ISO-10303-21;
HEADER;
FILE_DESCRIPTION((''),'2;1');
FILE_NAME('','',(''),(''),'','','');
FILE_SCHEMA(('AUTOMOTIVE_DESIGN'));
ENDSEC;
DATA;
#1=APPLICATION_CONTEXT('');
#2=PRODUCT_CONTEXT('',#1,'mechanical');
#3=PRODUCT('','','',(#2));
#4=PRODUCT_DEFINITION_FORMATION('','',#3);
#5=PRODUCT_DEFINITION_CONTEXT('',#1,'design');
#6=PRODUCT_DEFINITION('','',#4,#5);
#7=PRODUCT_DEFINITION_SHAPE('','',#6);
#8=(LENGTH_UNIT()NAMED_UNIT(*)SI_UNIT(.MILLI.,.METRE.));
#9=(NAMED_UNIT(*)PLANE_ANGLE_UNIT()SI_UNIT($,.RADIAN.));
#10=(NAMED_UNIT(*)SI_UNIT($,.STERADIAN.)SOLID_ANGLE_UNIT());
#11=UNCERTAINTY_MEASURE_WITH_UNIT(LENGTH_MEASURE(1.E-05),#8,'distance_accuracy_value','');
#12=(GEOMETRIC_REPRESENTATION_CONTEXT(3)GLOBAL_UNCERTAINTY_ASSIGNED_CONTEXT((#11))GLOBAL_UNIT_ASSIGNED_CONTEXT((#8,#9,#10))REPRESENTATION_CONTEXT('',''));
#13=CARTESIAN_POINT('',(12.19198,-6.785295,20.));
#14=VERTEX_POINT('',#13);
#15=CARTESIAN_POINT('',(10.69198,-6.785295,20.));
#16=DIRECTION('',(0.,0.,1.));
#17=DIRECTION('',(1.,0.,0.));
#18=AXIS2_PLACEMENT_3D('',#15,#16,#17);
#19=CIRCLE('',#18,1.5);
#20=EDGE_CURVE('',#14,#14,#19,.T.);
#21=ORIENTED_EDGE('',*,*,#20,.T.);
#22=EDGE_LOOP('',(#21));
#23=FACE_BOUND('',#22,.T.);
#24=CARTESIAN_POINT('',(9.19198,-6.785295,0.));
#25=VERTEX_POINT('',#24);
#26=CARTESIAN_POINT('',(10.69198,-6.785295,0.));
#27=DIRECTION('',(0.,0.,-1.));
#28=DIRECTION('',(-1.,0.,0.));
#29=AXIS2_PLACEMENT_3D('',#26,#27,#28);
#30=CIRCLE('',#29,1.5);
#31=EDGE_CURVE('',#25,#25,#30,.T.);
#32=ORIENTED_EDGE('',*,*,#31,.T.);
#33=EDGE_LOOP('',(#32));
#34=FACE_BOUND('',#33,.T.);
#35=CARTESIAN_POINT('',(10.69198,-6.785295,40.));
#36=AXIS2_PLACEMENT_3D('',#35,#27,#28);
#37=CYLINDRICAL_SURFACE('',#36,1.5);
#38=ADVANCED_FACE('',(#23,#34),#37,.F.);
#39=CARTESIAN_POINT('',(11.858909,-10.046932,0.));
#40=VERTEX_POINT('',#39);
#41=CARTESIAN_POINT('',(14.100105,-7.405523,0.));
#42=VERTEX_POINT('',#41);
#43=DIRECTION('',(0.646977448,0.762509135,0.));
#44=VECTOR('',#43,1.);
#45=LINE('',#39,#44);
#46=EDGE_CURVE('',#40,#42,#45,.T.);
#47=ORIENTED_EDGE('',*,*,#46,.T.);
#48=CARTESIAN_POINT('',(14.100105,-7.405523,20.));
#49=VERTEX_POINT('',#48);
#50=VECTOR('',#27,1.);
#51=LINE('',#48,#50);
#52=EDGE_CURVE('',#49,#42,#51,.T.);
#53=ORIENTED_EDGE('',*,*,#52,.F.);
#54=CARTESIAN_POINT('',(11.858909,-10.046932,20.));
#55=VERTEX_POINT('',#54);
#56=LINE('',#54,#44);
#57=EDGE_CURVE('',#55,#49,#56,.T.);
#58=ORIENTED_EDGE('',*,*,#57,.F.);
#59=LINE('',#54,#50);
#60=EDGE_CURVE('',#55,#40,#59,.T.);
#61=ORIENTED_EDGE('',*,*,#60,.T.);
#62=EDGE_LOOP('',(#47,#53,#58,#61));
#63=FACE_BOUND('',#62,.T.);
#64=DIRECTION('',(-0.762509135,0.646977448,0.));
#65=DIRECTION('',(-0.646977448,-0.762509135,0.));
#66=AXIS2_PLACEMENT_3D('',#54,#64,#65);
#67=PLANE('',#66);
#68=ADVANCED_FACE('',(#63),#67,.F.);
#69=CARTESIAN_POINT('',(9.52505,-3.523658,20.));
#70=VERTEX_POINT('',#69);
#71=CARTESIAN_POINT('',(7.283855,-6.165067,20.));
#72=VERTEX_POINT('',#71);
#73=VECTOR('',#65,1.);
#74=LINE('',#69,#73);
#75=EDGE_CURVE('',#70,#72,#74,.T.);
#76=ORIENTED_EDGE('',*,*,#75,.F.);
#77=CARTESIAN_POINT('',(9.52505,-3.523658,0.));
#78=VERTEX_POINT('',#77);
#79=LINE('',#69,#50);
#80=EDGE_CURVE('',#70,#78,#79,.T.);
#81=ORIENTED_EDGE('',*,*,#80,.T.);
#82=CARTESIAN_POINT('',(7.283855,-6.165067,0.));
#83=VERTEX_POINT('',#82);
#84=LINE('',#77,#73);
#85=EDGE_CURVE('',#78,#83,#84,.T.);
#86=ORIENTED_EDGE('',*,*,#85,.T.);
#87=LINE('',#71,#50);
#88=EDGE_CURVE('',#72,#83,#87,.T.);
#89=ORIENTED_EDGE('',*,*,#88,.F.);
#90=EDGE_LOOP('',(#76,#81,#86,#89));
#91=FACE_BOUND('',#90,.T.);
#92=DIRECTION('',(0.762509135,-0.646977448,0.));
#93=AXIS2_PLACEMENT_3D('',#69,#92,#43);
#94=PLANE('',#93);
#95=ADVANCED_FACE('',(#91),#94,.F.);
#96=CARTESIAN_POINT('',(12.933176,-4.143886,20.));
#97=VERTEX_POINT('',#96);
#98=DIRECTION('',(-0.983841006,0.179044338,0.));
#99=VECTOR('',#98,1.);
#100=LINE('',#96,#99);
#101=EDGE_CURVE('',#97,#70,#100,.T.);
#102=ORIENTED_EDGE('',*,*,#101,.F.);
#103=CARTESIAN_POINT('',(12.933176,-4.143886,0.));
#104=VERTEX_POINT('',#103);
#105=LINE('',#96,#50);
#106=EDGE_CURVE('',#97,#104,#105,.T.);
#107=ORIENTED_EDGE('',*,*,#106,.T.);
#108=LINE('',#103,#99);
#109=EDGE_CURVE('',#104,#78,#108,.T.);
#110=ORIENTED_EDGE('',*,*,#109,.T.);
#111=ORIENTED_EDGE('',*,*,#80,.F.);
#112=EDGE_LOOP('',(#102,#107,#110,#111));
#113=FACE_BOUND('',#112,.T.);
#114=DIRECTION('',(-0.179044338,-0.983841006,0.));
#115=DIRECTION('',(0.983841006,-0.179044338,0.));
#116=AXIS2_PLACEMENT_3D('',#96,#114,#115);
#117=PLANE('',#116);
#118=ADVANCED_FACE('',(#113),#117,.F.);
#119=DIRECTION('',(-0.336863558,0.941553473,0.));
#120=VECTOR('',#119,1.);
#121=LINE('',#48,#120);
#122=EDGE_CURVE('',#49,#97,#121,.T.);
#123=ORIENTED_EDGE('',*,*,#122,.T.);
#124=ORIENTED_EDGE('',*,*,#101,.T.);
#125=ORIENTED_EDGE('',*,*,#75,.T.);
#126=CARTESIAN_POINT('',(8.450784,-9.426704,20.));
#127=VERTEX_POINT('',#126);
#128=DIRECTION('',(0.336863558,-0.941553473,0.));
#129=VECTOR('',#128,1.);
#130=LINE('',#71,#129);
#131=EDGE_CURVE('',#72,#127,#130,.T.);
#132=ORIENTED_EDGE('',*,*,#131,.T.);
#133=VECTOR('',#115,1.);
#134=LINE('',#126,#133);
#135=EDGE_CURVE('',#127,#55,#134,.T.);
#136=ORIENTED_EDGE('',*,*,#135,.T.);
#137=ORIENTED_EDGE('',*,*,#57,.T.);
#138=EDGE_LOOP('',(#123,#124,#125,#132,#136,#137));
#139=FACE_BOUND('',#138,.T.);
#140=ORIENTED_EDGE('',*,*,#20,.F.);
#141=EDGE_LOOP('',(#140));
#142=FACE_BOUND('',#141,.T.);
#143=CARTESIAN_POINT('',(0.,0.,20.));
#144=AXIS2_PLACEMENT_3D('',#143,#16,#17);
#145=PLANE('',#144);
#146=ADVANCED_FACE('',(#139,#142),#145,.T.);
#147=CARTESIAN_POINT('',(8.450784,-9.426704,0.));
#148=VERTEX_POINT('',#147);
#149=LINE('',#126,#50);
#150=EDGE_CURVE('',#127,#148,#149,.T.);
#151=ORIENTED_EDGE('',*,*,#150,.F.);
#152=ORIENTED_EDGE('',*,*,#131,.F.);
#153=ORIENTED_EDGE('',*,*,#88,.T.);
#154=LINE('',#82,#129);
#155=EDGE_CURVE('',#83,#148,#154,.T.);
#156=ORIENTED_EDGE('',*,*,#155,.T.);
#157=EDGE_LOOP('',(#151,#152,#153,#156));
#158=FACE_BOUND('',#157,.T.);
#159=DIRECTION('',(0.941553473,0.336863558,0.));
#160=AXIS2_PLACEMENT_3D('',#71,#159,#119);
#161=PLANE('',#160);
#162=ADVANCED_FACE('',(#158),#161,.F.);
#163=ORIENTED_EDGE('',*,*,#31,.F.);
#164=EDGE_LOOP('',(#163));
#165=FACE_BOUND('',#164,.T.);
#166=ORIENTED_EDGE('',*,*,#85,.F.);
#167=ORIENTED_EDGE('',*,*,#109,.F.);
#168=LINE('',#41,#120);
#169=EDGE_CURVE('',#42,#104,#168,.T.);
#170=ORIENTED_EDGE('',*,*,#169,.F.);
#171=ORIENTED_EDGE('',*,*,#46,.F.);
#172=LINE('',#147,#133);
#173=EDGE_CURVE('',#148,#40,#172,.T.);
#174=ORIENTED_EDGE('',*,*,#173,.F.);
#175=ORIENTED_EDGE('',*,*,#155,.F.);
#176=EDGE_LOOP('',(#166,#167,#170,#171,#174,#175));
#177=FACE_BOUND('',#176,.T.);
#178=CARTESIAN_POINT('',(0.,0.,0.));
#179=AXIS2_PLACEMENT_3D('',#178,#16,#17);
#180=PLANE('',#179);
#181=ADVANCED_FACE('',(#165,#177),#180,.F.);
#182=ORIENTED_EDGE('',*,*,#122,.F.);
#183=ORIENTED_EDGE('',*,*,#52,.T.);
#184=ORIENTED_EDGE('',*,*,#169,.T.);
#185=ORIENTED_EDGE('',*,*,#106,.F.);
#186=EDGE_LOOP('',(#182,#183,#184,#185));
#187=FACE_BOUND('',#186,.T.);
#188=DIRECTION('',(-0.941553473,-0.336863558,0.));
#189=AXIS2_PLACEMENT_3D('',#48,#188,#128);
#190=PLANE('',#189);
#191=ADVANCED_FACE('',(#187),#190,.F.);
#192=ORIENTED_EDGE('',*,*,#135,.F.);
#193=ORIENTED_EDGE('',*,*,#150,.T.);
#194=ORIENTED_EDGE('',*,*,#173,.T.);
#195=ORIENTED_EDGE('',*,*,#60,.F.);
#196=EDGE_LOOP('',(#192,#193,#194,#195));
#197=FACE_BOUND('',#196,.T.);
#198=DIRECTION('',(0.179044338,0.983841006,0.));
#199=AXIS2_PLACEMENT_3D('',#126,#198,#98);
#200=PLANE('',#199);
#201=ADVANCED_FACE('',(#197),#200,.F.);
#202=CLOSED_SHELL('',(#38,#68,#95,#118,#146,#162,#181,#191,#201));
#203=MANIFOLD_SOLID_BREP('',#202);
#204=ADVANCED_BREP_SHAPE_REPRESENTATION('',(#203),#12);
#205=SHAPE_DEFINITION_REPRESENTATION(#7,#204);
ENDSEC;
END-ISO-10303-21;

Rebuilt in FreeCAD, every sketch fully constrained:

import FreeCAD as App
import Part
import Sketcher

V = App.Vector


def add_polygon(sketch, points):
    """Adds a closed chain of lines whose ends are joined by coincident constraints."""
    first, n = sketch.GeometryCount, len(points)
    for a, b in zip(points, points[1:] + points[:1]):
        sketch.addGeometry(Part.LineSegment(App.Vector(*a, 0), App.Vector(*b, 0)), False)
    for i in range(n):
        sketch.addConstraint(Sketcher.Constraint("Coincident", first + i, 2, first + (i + 1) % n, 1))

doc = App.newDocument("Part")
body = doc.addObject("PartDesign::Body", "Body")

sketch1 = body.newObject("Sketcher::SketchObject", "Sketch")
sketch1.AttachmentSupport = (doc.getObject("XY_Plane"), [""])
sketch1.MapMode = "FlatFace"
add_polygon(sketch1, [(12.933176, -4.143886), (9.52505, -3.523658), (7.283855, -6.165067), (8.450784, -9.426704), (11.858909, -10.046932), (14.100105, -7.405523)])
sketch1.addConstraint(Sketcher.Constraint("Parallel", 0, 3))
sketch1.addConstraint(Sketcher.Constraint("Parallel", 1, 4))
sketch1.addConstraint(Sketcher.Constraint("Parallel", 2, 5))
sketch1.addConstraint(Sketcher.Constraint("Equal", 0, 1))
sketch1.addConstraint(Sketcher.Constraint("Equal", 1, 2))
sketch1.addConstraint(Sketcher.Constraint("Equal", 2, 3))
sketch1.addConstraint(Sketcher.Constraint("Distance", 0, 3.464102))
sketch1.addConstraint(Sketcher.Constraint("DistanceX", -1, 1, 0, 2, 9.52505))
sketch1.addConstraint(Sketcher.Constraint("DistanceY", 0, 2, -1, 1, 3.523658))
sketch1.addConstraint(Sketcher.Constraint("DistanceX", -1, 1, 3, 2, 11.858909))
sketch1.addConstraint(Sketcher.Constraint("DistanceY", 3, 2, -1, 1, 10.046932))
sketch1.addConstraint(Sketcher.Constraint("DistanceY", 1, 2, 0, 2, 2.641409))
pad1 = body.newObject("PartDesign::Pad", "Pad")
pad1.Profile = sketch1
pad1.Length = 20

sketch2 = body.newObject("Sketcher::SketchObject", "Sketch001")
sketch2.AttachmentSupport = (doc.getObject("XY_Plane"), [""])
sketch2.MapMode = "FlatFace"
sketch2.addGeometry(Part.Circle(V(10.69198, -6.785295, 0), V(0, 0, 1), 1.5), False)
sketch2.addConstraint(Sketcher.Constraint("Diameter", 0, 3.0))
sketch2.addConstraint(Sketcher.Constraint("DistanceX", -1, 1, 0, 3, 10.69198))
sketch2.addConstraint(Sketcher.Constraint("DistanceY", 0, 3, -1, 1, 6.785295))
pocket1 = body.newObject("PartDesign::Pocket", "Pocket")
pocket1.Profile = sketch2
pocket1.Length = 40
pocket1.Reversed = True

doc.recompute()
